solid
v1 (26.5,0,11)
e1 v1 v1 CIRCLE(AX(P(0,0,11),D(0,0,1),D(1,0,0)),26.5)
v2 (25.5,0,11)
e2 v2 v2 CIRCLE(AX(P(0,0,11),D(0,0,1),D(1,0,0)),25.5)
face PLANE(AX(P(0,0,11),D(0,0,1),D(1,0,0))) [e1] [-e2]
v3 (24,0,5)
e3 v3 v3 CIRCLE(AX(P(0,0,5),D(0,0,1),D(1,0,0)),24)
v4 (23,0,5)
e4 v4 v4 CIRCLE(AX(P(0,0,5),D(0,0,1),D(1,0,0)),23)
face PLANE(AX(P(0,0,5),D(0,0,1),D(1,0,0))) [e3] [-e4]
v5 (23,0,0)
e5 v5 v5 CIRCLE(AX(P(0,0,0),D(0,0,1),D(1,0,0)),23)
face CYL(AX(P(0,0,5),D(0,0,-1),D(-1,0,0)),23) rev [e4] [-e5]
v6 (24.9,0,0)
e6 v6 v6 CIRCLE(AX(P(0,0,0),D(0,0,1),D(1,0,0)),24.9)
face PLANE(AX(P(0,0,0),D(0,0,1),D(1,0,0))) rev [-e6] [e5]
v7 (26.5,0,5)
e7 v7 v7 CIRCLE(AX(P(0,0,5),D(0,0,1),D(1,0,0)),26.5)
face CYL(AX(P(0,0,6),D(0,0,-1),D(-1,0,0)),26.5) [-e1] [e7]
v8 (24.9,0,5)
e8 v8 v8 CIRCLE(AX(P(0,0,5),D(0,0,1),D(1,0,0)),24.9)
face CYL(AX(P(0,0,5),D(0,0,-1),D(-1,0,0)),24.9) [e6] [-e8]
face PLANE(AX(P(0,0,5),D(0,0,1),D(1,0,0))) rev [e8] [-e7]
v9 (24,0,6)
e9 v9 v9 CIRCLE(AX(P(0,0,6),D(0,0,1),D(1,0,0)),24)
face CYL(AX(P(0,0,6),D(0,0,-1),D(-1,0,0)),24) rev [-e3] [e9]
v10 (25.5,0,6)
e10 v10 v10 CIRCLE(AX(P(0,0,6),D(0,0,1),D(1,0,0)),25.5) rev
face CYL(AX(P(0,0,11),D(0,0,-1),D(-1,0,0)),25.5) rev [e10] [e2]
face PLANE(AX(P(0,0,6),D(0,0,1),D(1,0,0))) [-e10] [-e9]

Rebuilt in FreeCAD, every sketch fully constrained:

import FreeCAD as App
import Part
import Sketcher
from FreeCAD import Vector

doc = App.newDocument("Part")
params = doc.addObject("Spreadsheet::Sheet", "Params")
for row, (alias, value) in enumerate([
    ("sketch1_diameter", "46 mm"),
    ("sketch1_diameter2", "49.8 mm"),
    ("pad1_length", "5 mm"),
    ("sketch2_diameter", "53 mm"),
    ("sketch2_diameter2", "48 mm"),
    ("pad2_length", "1 mm"),
    ("sketch3_diameter", "53 mm"),
    ("sketch3_diameter2", "51 mm"),
    ("pad3_length", "5 mm"),
], start=1):
    params.set(f"A{row}", alias)
    params.set(f"B{row}", "=" + value)
    params.setAlias(f"B{row}", alias)

body = doc.addObject("PartDesign::Body", "Body")

# Sketch on XY plane
sketch1 = body.newObject("Sketcher::SketchObject", "Sketch")
sketch1.AttachmentSupport = (doc.getObject("XY_Plane"), [""])
sketch1.MapMode = "FlatFace"
sketch1.addGeometry(Part.Circle(Vector(0, 0, 0), Vector(0, 0, 1), 25), False)
sketch1.addGeometry(Part.Circle(Vector(0, 0, 0), Vector(0, 0, 1), 23), False)
sketch1.addConstraint(Sketcher.Constraint("Coincident", 0, 3, -1, 1))
sketch1.addConstraint(Sketcher.Constraint("Coincident", 1, 3, -1, 1))
sketch1.addConstraint(Sketcher.Constraint("Diameter", 1, 46.0))
sketch1.addConstraint(Sketcher.Constraint("Diameter", 0, 49.8))
sketch1.setExpression("Constraints[2]", "Params.sketch1_diameter")
sketch1.setExpression("Constraints[3]", "Params.sketch1_diameter2")
pad1 = body.newObject("PartDesign::Pad", "Pad")
pad1.Profile = sketch1
pad1.setExpression("Length", "Params.pad1_length")

# Sketch on XY plane
sketch2 = body.newObject("Sketcher::SketchObject", "Sketch001")
sketch2.AttachmentSupport = (doc.getObject("XY_Plane"), [""])
sketch2.MapMode = "FlatFace"
sketch2.AttachmentOffset = App.Placement(Vector(0, 0, 5), App.Rotation())
sketch2.addGeometry(Part.Circle(Vector(0, 0, 0), Vector(0, 0, 1), 26), False)
sketch2.addGeometry(Part.Circle(Vector(0, 0, 0), Vector(0, 0, 1), 24), False)
sketch2.addConstraint(Sketcher.Constraint("Coincident", 0, 3, -1, 1))
sketch2.addConstraint(Sketcher.Constraint("Coincident", 1, 3, -1, 1))
sketch2.addConstraint(Sketcher.Constraint("Diameter", 0, 53.0))
sketch2.addConstraint(Sketcher.Constraint("Diameter", 1, 48.0))
sketch2.setExpression("Constraints[2]", "Params.sketch2_diameter")
sketch2.setExpression("Constraints[3]", "Params.sketch2_diameter2")
pad2 = body.newObject("PartDesign::Pad", "Pad001")
pad2.Profile = sketch2
pad2.setExpression("Length", "Params.pad2_length")

# Sketch on XY plane
sketch3 = body.newObject("Sketcher::SketchObject", "Sketch002")
sketch3.AttachmentSupport = (doc.getObject("XY_Plane"), [""])
sketch3.MapMode = "FlatFace"
sketch3.AttachmentOffset = App.Placement(Vector(0, 0, 6), App.Rotation())
sketch3.addGeometry(Part.Circle(Vector(0, 0, 0), Vector(0, 0, 1), 26), False)
sketch3.addGeometry(Part.Circle(Vector(0, 0, 0), Vector(0, 0, 1), 26), False)
sketch3.addConstraint(Sketcher.Constraint("Coincident", 0, 3, -1, 1))
sketch3.addConstraint(Sketcher.Constraint("Coincident", 1, 3, -1, 1))
sketch3.addConstraint(Sketcher.Constraint("Diameter", 0, 53.0))
sketch3.addConstraint(Sketcher.Constraint("Diameter", 1, 51.0))
sketch3.setExpression("Constraints[2]", "Params.sketch3_diameter")
sketch3.setExpression("Constraints[3]", "Params.sketch3_diameter2")
pad3 = body.newObject("PartDesign::Pad", "Pad002")
pad3.Profile = sketch3
pad3.setExpression("Length", "Params.pad3_length")

doc.recompute()
